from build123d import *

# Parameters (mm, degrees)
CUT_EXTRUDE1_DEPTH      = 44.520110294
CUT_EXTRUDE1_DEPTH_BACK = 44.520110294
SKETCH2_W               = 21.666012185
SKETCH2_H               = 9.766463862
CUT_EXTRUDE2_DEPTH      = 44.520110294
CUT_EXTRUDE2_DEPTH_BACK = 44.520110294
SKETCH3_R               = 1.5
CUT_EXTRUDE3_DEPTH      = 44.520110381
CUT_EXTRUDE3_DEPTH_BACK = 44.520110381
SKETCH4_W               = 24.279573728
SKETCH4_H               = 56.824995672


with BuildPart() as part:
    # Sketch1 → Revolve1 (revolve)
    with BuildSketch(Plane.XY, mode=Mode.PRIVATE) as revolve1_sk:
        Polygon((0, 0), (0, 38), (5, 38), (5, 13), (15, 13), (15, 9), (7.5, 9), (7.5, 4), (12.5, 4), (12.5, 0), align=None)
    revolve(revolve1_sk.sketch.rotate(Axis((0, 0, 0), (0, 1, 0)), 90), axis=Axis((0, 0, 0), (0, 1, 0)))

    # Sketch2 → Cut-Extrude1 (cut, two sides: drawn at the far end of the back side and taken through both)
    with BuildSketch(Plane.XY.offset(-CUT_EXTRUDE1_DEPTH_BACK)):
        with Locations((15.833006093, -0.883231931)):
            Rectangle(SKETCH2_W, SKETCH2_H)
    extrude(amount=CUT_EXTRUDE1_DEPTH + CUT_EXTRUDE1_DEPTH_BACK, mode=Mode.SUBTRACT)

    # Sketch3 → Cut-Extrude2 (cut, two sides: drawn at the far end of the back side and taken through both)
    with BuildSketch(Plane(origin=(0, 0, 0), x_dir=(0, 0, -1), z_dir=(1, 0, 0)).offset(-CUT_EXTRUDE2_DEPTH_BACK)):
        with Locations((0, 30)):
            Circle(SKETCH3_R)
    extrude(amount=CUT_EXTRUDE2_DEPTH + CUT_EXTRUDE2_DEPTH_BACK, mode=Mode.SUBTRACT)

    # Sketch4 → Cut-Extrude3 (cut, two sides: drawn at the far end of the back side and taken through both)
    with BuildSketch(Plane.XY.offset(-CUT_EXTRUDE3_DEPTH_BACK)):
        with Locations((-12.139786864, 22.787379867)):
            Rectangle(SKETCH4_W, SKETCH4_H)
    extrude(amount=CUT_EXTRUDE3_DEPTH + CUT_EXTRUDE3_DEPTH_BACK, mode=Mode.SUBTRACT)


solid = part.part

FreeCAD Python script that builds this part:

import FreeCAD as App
import Part
import Sketcher
from FreeCAD import Vector
Q = App.Units.Quantity


def add_polygon(sketch, points):
    """Adds a closed chain of lines whose ends are joined by coincident constraints."""
    first, n = sketch.GeometryCount, len(points)
    for a, b in zip(points, points[1:] + points[:1]):
        sketch.addGeometry(Part.LineSegment(App.Vector(*a, 0), App.Vector(*b, 0)), False)
    for i in range(n):
        sketch.addConstraint(Sketcher.Constraint("Coincident", first + i, 2, first + (i + 1) % n, 1))

doc = App.newDocument("Part")
body = doc.addObject("PartDesign::Body", "Body")

# Sketch on XY plane
sketch1 = doc.addObject("Sketcher::SketchObject", "Sketch")
body.addObject(sketch1)
sketch1.AttachmentSupport = (doc.XY_Plane, [""])
sketch1.MapMode = "FlatFace"
add_polygon(sketch1, [(0, 38), (0, 0), (12.5, 0), (12.5, 4), (7.5, 4), (7.5, 9), (15, 9), (15, 13), (5, 13), (5, 38)])  # lines 0-9
sketch1.addConstraint([
    Sketcher.Constraint("Vertical", 0),
    Sketcher.Constraint("Horizontal", 1),
    Sketcher.Constraint("Vertical", 2),
    Sketcher.Constraint("Horizontal", 3),
    Sketcher.Constraint("Vertical", 4),
    Sketcher.Constraint("Horizontal", 5),
    Sketcher.Constraint("Vertical", 6),
    Sketcher.Constraint("Horizontal", 7),
    Sketcher.Constraint("Vertical", 8),
    Sketcher.Constraint("Horizontal", 9),
    Sketcher.Constraint("Coincident", 0, 2, -1, 1),
    Sketcher.Constraint("Equal", 3, 9),
    Sketcher.Constraint("Equal", 9, 4),
    Sketcher.Constraint("Equal", 2, 6),
    Sketcher.Constraint("DistanceX", 3, 2, 3, 1, Q("5 mm")),
    Sketcher.Constraint("DistanceX", 7, 2, 7, 1, Q("10 mm")),
    Sketcher.Constraint("DistanceY", 0, 2, 0, 1, Q("38 mm")),
    Sketcher.Constraint("DistanceY", 2, 1, 2, 2, Q("4 mm")),
    Sketcher.Constraint("DistanceX", 1, 1, 1, 2, Q("12.5 mm")),
])
revolution = doc.addObject("PartDesign::Revolution", "Revolution")
body.addObject(revolution)
revolution.Profile = sketch1
revolution.ReferenceAxis = (sketch1, ["V_Axis"])
revolution.Angle = 360

# Sketch on XY plane
sketch2 = doc.addObject("Sketcher::SketchObject", "Sketch001")
body.addObject(sketch2)
sketch2.AttachmentSupport = (doc.XY_Plane, [""])
sketch2.MapMode = "FlatFace"
add_polygon(sketch2, [(5, 4), (5, -6), (27, -6), (27, 4)])  # lines 0-3
sketch2.addConstraint([
    Sketcher.Constraint("Vertical", 0),
    Sketcher.Constraint("Horizontal", 1),
    Sketcher.Constraint("Vertical", 2),
    Sketcher.Constraint("Horizontal", 3),
    Sketcher.Constraint("DistanceX", -1, 1, 0, 2, Q("5 mm")),
    Sketcher.Constraint("DistanceY", -1, 1, 2, 2, Q("4 mm")),
    Sketcher.Constraint("DistanceX", 1, 1, 1, 2, Q("21.666012 mm")),
    Sketcher.Constraint("DistanceY", 0, 2, 0, 1, Q("9.766464 mm")),
])
pocket1 = doc.addObject("PartDesign::Pocket", "Pocket")
body.addObject(pocket1)
pocket1.Profile = sketch2
pocket1.Type = "ThroughAll"
pocket1.Midplane = True

# Sketch on YZ plane
sketch3 = doc.addObject("Sketcher::SketchObject", "Sketch002")
body.addObject(sketch3)
sketch3.AttachmentSupport = (doc.YZ_Plane, [""])
sketch3.MapMode = "FlatFace"
sketch3.addGeometry(Part.Circle(Vector(30, 0, 0), Vector(0, 0, 1), 1.5), False)
sketch3.addConstraint([
    Sketcher.Constraint("PointOnObject", 0, 3, -1),
    Sketcher.Constraint("Diameter", 0, Q("3 mm")),
    Sketcher.Constraint("DistanceX", -1, 1, 0, 3, Q("30 mm")),
])
pocket2 = doc.addObject("PartDesign::Pocket", "Pocket001")
body.addObject(pocket2)
pocket2.Profile = sketch3
pocket2.Type = "ThroughAll"
pocket2.Midplane = True

# Sketch on XY plane
sketch4 = doc.addObject("Sketcher::SketchObject", "Sketch003")
body.addObject(sketch4)
sketch4.AttachmentSupport = (doc.XY_Plane, [""])
sketch4.MapMode = "FlatFace"
add_polygon(sketch4, [(-24, 51), (-24, -6), (0, -6), (0, 51)])  # lines 0-3
sketch4.addConstraint([
    Sketcher.Constraint("Vertical", 0),
    Sketcher.Constraint("Horizontal", 1),
    Sketcher.Constraint("Vertical", 2),
    Sketcher.Constraint("Horizontal", 3),
    Sketcher.Constraint("PointOnObject", 1, 2, -2),
    Sketcher.Constraint("DistanceX", 1, 1, 1, 2, Q("24.279574 mm")),
    Sketcher.Constraint("DistanceY", 0, 2, 0, 1, Q("56.824996 mm")),
    Sketcher.Constraint("DistanceY", 0, 2, -1, 1, Q("5.625118 mm")),
])
pocket3 = doc.addObject("PartDesign::Pocket", "Pocket002")
body.addObject(pocket3)
pocket3.Profile = sketch4
pocket3.Type = "ThroughAll"
pocket3.Midplane = True

doc.recompute()
